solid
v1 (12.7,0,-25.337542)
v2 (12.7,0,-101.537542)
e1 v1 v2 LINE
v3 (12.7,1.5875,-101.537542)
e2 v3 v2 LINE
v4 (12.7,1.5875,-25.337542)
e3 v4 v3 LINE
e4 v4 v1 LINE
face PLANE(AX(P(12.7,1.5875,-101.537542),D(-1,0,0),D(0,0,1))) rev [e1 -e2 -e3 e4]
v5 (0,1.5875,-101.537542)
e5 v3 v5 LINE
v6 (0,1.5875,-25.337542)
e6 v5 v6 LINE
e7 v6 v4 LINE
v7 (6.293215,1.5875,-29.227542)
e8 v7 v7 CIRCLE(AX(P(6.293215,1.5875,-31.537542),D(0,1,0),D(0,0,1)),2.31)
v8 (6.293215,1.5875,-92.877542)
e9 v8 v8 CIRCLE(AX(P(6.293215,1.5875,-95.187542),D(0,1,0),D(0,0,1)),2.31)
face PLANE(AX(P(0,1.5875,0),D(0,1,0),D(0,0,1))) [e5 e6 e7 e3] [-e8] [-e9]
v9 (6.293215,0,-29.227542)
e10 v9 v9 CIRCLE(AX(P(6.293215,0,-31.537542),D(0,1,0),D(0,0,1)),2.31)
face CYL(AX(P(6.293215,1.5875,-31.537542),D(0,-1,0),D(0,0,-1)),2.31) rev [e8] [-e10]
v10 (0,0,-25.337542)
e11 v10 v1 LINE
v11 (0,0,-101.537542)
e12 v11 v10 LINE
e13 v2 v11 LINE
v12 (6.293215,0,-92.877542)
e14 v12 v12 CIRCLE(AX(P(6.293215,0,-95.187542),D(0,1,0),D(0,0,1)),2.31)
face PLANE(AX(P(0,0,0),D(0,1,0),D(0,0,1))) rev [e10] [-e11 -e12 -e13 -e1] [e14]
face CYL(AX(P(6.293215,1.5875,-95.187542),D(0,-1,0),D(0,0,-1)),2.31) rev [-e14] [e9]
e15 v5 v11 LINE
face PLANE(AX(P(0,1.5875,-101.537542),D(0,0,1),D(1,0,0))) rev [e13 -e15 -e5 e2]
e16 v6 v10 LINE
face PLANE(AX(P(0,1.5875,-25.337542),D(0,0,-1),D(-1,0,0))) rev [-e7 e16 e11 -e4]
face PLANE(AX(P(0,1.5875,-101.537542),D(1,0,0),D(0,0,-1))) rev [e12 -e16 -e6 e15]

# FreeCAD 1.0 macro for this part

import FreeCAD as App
import Part
import Sketcher
from FreeCAD import Vector
Q = App.Units.Quantity

doc = App.newDocument("Part")
body = doc.addObject("PartDesign::Body", "Body")

# Sketch on XZ plane
sketch1 = doc.addObject("Sketcher::SketchObject", "Sketch")
body.addObject(sketch1)
sketch1.AttachmentSupport = (doc.XZ_Plane, [""])
sketch1.MapMode = "FlatFace"
sketch1.addGeometry([
    Part.LineSegment(Vector(0, -101.5, 0), Vector(0, -25.3, 0)),  # 0
    Part.LineSegment(Vector(0, -25.3, 0), Vector(12.7, -25.3, 0)),  # 1
    Part.LineSegment(Vector(12.7, -25.3, 0), Vector(12.7, -101.5, 0)),  # 2
    Part.LineSegment(Vector(12.7, -101.5, 0), Vector(0, -101.5, 0)),  # 3
    Part.Circle(Vector(6.3, -31.5, 0), Vector(0, 0, 1), 2.3),  # 4
    Part.Circle(Vector(6.3, -95.2, 0), Vector(0, 0, 1), 2.3),  # 5
], False)
sketch1.addConstraint([
    Sketcher.Constraint("Coincident", 0, 2, 1, 1),
    Sketcher.Constraint("Coincident", 1, 2, 2, 1),
    Sketcher.Constraint("Coincident", 2, 2, 3, 1),
    Sketcher.Constraint("Coincident", 3, 2, 0, 1),
    Sketcher.Constraint("Vertical", 0),
    Sketcher.Constraint("Horizontal", 1),
    Sketcher.Constraint("Vertical", 2),
    Sketcher.Constraint("Horizontal", 3),
    Sketcher.Constraint("Equal", 4, 5),
    Sketcher.Constraint("PointOnObject", 0, 2, -2),
    Sketcher.Constraint("Vertical", 4, 3, 5, 3),
    Sketcher.Constraint("DistanceY", 0, 1, 0, 2, Q("3 in")),
    Sketcher.Constraint("DistanceX", 1, 1, 1, 2, Q("0.5 in")),
    Sketcher.Constraint("Diameter", 4, 4.62),
    Sketcher.Constraint("DistanceY", 5, 3, 0, 2, Q("2.75 in")),
    Sketcher.Constraint("DistanceY", 5, 3, 4, 3, 63.65),
    Sketcher.Constraint("DistanceX", -1, 1, 4, 3, 6.293215),
    Sketcher.Constraint("DistanceY", 4, 3, -1, 1, 31.537542),
])
pad1 = doc.addObject("PartDesign::Pad", "Pad")
body.addObject(pad1)
pad1.Profile = sketch1
pad1.Length = Q("0.0625 in")
pad1.Reversed = True

doc.recompute()
